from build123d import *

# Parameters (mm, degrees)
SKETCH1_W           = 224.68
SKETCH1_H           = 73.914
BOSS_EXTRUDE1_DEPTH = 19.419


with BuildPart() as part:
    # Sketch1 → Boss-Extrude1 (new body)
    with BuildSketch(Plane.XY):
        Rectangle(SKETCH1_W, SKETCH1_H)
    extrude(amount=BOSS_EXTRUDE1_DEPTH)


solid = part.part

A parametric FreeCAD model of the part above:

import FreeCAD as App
import Part
import Sketcher
from FreeCAD import Vector
Q = App.Units.Quantity

doc = App.newDocument("Part")
body = doc.addObject("PartDesign::Body", "Body")

sketch1 = body.newObject("Sketcher::SketchObject", "Sketch")
sketch1.AttachmentSupport = (doc.getObject("XY_Plane"), [""])
sketch1.MapMode = "FlatFace"
sketch1.addGeometry(Part.LineSegment(Vector(-112.34, 36.957, 0), Vector(-112.34, -36.957, 0)), False)
sketch1.addGeometry(Part.LineSegment(Vector(-112.34, -36.957, 0), Vector(112.34, -36.957, 0)), False)
sketch1.addGeometry(Part.LineSegment(Vector(112.34, -36.957, 0), Vector(112.34, 36.957, 0)), False)
sketch1.addGeometry(Part.LineSegment(Vector(112.34, 36.957, 0), Vector(-112.34, 36.957, 0)), False)
sketch1.addConstraint(Sketcher.Constraint("Coincident", 0, 2, 1, 1))
sketch1.addConstraint(Sketcher.Constraint("Coincident", 1, 2, 2, 1))
sketch1.addConstraint(Sketcher.Constraint("Coincident", 2, 2, 3, 1))
sketch1.addConstraint(Sketcher.Constraint("Coincident", 3, 2, 0, 1))
sketch1.addConstraint(Sketcher.Constraint("Vertical", 0))
sketch1.addConstraint(Sketcher.Constraint("Horizontal", 1))
sketch1.addConstraint(Sketcher.Constraint("Vertical", 2))
sketch1.addConstraint(Sketcher.Constraint("Horizontal", 3))
sketch1.addConstraint(Sketcher.Constraint("Symmetric", 0, 2, 2, 2, -1, 1))
sketch1.addConstraint(Sketcher.Constraint("DistanceY", 0, 2, 0, 1, Q("2.91 in")))
sketch1.addConstraint(Sketcher.Constraint("DistanceX", 1, 1, 1, 2, 224.68))
pad1 = body.newObject("PartDesign::Pad", "Pad")
pad1.Profile = sketch1
pad1.Length = 19.419

doc.recompute()
